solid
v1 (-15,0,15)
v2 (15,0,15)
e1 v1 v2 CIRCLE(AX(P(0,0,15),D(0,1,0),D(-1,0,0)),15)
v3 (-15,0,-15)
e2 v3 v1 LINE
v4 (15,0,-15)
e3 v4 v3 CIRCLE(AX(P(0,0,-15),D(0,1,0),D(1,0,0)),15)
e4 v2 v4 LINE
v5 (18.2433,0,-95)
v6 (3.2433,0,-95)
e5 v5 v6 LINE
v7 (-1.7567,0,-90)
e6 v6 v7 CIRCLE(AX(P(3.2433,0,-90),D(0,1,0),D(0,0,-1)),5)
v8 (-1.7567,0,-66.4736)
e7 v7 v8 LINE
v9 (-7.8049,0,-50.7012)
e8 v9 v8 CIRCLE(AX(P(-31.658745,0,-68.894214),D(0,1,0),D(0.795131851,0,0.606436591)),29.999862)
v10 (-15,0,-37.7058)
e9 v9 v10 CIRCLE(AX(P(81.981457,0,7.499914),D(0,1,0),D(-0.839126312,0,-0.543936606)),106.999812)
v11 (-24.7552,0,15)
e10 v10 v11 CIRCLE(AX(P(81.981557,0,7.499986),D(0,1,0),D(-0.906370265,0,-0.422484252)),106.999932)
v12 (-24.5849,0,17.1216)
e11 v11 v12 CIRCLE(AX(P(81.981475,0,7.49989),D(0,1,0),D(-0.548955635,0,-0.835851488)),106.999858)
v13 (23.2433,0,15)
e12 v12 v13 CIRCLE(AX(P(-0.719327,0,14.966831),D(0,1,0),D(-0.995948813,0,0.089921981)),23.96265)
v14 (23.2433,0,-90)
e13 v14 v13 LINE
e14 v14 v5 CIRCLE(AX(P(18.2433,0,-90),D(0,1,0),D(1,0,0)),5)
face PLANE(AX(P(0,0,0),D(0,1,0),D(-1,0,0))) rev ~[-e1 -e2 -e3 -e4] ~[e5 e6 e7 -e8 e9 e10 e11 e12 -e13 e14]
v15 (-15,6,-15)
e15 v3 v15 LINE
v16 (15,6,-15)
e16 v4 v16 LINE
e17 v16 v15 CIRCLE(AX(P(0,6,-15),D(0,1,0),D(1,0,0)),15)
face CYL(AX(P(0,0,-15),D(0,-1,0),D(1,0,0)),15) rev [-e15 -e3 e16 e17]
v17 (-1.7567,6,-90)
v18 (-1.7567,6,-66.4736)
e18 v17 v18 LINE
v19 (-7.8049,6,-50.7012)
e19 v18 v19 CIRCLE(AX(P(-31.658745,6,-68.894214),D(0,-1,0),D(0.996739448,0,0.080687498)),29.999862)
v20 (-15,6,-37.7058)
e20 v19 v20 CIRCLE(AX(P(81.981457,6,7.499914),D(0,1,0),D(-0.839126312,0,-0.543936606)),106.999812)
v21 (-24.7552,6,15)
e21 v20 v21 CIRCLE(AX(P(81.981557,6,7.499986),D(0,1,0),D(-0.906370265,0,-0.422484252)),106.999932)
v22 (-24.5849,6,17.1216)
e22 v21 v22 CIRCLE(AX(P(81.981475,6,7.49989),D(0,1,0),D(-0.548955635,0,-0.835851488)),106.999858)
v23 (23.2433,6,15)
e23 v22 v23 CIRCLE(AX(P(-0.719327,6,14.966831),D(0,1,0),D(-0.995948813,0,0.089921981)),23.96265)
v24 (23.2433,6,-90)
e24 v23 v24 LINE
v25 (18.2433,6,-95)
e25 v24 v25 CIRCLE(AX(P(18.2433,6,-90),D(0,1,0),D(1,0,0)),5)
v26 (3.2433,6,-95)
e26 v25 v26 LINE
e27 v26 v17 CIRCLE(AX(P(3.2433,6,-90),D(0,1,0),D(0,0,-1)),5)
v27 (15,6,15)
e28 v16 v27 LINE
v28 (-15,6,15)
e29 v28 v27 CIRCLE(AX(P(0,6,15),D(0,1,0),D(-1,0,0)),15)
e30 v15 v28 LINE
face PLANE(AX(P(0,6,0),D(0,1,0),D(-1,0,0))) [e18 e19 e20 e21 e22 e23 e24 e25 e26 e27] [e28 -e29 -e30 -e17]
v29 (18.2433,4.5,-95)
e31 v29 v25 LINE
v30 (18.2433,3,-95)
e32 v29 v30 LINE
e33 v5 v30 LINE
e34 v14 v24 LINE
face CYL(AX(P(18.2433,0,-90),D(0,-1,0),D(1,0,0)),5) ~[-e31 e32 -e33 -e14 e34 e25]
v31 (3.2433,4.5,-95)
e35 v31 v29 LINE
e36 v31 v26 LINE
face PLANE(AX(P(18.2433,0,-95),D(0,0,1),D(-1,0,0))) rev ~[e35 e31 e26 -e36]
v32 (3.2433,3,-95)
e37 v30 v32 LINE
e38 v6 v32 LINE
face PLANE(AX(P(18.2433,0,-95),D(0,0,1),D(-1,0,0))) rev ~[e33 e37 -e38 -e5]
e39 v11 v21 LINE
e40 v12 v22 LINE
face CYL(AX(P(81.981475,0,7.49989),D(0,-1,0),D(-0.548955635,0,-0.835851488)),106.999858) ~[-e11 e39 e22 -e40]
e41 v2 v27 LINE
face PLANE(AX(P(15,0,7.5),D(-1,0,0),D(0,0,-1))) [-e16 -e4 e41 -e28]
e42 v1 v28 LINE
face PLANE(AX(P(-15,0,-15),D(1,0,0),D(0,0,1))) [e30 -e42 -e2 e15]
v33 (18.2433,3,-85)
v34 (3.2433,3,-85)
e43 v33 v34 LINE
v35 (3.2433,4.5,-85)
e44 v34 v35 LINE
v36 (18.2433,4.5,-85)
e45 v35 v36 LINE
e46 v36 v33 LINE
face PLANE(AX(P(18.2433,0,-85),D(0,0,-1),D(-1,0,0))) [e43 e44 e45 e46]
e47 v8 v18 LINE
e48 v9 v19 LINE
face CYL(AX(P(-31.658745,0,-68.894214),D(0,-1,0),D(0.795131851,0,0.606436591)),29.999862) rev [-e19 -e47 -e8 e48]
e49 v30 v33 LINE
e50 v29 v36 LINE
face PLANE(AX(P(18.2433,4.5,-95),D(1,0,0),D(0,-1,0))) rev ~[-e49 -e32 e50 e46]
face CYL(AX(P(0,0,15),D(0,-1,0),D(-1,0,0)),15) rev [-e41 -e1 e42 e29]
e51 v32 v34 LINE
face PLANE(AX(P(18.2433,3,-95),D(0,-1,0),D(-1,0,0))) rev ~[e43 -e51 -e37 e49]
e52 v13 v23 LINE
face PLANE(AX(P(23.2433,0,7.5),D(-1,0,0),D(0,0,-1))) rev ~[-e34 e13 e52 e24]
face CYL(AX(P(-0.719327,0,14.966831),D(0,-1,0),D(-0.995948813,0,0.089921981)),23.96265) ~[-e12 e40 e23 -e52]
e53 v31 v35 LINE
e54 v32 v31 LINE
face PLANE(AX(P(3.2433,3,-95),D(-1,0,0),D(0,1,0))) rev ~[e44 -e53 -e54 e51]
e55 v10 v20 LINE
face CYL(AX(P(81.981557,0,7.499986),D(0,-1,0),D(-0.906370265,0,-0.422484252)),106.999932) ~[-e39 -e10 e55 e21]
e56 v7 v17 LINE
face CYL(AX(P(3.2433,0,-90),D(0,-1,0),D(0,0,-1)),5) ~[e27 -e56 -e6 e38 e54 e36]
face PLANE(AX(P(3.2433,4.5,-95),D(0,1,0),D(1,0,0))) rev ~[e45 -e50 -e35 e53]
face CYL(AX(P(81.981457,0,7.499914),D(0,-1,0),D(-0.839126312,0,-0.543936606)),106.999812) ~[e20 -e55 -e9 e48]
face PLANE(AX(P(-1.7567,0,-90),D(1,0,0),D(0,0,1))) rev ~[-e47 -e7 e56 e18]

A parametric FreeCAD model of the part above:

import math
import FreeCAD as App
import Part
import Sketcher


def add_polygon(sketch, points):
    """Adds a closed chain of lines whose ends are joined by coincident constraints."""
    first, n = sketch.GeometryCount, len(points)
    for a, b in zip(points, points[1:] + points[:1]):
        sketch.addGeometry(Part.LineSegment(App.Vector(*a, 0), App.Vector(*b, 0)), False)
    for i in range(n):
        sketch.addConstraint(Sketcher.Constraint("Coincident", first + i, 2, first + (i + 1) % n, 1))

doc = App.newDocument("Part")
body = doc.addObject("PartDesign::Body", "Body")

sketch1 = body.newObject("Sketcher::SketchObject", "Sketch")
sketch1.AttachmentSupport = (doc.getObject("XZ_Plane"), [""])
sketch1.MapMode = "FlatFace"
sketch1.addGeometry([
    Part.ArcOfCircle(Part.Circle(App.Vector(81.9816, 7.5, 0), App.Vector(0, 0, 1), 106.999974), math.radians(175.980644), math.radians(204.991525)),
    Part.ArcOfCircle(Part.Circle(App.Vector(81.9816, 7.5, 0), App.Vector(0, 0, 1), 106.999974), math.radians(174.840908), math.radians(175.980644)),
    Part.ArcOfCircle(Part.Circle(App.Vector(-0.7193, 14.9668, 0), App.Vector(0, 0, 1), 23.96268), math.radians(0.079383), math.radians(174.840813)),
    Part.LineSegment(App.Vector(23.2433, 15, 0), App.Vector(23.2433, -90, 0)),
    Part.ArcOfCircle(Part.Circle(App.Vector(18.2433, -90, 0), App.Vector(0, 0, 1), 5), math.radians(-90), math.radians(0)),
    Part.LineSegment(App.Vector(18.2433, -95, 0), App.Vector(3.2433, -95, 0)),
    Part.ArcOfCircle(Part.Circle(App.Vector(3.2433, -90, 0), App.Vector(0, 0, 1), 5), math.radians(180), math.radians(270)),
    Part.LineSegment(App.Vector(-1.7567, -90, 0), App.Vector(-1.7567, -66.4736, 0)),
    Part.ArcOfCircle(Part.Circle(App.Vector(-31.6589, -68.8943, 0), App.Vector(0, 0, 1), 30.000037), math.radians(4.628225), math.radians(37.332241)),
    Part.ArcOfCircle(Part.Circle(App.Vector(81.9816, 7.5, 0), App.Vector(0, 0, 1), 106.999974), math.radians(-155.008475), math.radians(-147.047978)),
    Part.LineSegment(App.Vector(15, -15, 0), App.Vector(15, 15, 0)),
    Part.ArcOfCircle(Part.Circle(App.Vector(0, 15, 0), App.Vector(0, 0, 1), 15), math.radians(0), math.radians(180)),
    Part.LineSegment(App.Vector(-15, 15, 0), App.Vector(-15, -15, 0)),
    Part.ArcOfCircle(Part.Circle(App.Vector(0, -15, 0), App.Vector(0, 0, 1), 15), math.radians(180), math.radians(360)),
], False)
sketch1.addConstraint([
    Sketcher.Constraint("Coincident", 0, 1, 1, 2),
    Sketcher.Constraint("Coincident", 1, 1, 2, 2),
    Sketcher.Constraint("Coincident", 2, 1, 3, 1),
    Sketcher.Constraint("Coincident", 3, 2, 4, 2),
    Sketcher.Constraint("Coincident", 4, 1, 5, 1),
    Sketcher.Constraint("Coincident", 5, 2, 6, 2),
    Sketcher.Constraint("Coincident", 6, 1, 7, 1),
    Sketcher.Constraint("Coincident", 7, 2, 8, 1),
    Sketcher.Constraint("Coincident", 8, 2, 9, 2),
    Sketcher.Constraint("Coincident", 9, 1, 0, 2),
    Sketcher.Constraint("Coincident", 10, 2, 11, 1),
    Sketcher.Constraint("Coincident", 11, 2, 12, 1),
    Sketcher.Constraint("Coincident", 12, 2, 13, 1),
    Sketcher.Constraint("Coincident", 13, 2, 10, 1),
    Sketcher.Constraint("Vertical", 3),
    Sketcher.Constraint("Horizontal", 5),
    Sketcher.Constraint("Vertical", 7),
    Sketcher.Constraint("Vertical", 10),
    Sketcher.Constraint("Vertical", 12),
    Sketcher.Constraint("Coincident", 1, 3, 0, 3),
    Sketcher.Constraint("Coincident", 9, 3, 0, 3),
    Sketcher.Constraint("PointOnObject", 11, 3, -2),
    Sketcher.Constraint("Radius", 0, 107.0),
    Sketcher.Constraint("Radius", 4, 5.0),
    Sketcher.Constraint("Radius", 6, 5.0),
    Sketcher.Constraint("Radius", 8, 30.0),
    Sketcher.Constraint("Radius", 11, 15.0),
    Sketcher.Constraint("DistanceY", 3, 2, 3, 1, 105.0),
    Sketcher.Constraint("DistanceY", 10, 1, 10, 2, 30.0),
    Sketcher.Constraint("DistanceY", 12, 2, 12, 1, 30.0),
    Sketcher.Constraint("DistanceY", 13, 3, 11, 3, 30.0),
    Sketcher.Constraint("DistanceY", 13, 3, 0, 1, 30.0),
    Sketcher.Constraint("DistanceY", 13, 3, 2, 1, 30.0),
    Sketcher.Constraint("DistanceX", 4, 1, 3, 2, 5.0),
    Sketcher.Constraint("DistanceY", 4, 1, 3, 2, 5.0),
    Sketcher.Constraint("DistanceX", 6, 1, 5, 2, 5.0),
    Sketcher.Constraint("DistanceY", 5, 2, 6, 1, 5.0),
    Sketcher.Constraint("DistanceX", 6, 1, 3, 2, 25.0),
    Sketcher.Constraint("DistanceY", 13, 3, 10, 2, 30.0),
    Sketcher.Constraint("DistanceY", 12, 2, 0, 1, 30.0),
    Sketcher.Constraint("DistanceY", -1, 1, 0, 3, 7.5),
    Sketcher.Constraint("DistanceY", 0, 3, 11, 3, 7.5),
    Sketcher.Constraint("DistanceX", 9, 1, -1, 1, 15.0),
    Sketcher.Constraint("Radius", 2, 23.9627),
    Sketcher.Constraint("DistanceY", 7, 1, 7, 2, 23.5264),
    Sketcher.Constraint("DistanceX", 8, 3, -1, 1, 31.659),
    Sketcher.Constraint("DistanceX", 1, 1, -1, 1, 24.585),
    Sketcher.Constraint("DistanceX", 8, 2, -1, 1, 7.805),
    Sketcher.Constraint("DistanceX", 2, 3, 0, 3, 82.701),
])
pad1 = body.newObject("PartDesign::Pad", "Pad")
pad1.Profile = sketch1
pad1.Length = 6
pad1.Reversed = True

sketch2 = body.newObject("Sketcher::SketchObject", "Sketch001")
sketch2.AttachmentSupport = (doc.getObject("XY_Plane"), [""])
sketch2.MapMode = "FlatFace"
sketch2.AttachmentOffset = App.Placement(App.Vector(0, 0, -95), App.Rotation())
add_polygon(sketch2, [(18.2433, 3), (3.2433, 3), (3.2433, 4.5), (18.2433, 4.5)])
sketch2.addConstraint([
    Sketcher.Constraint("Horizontal", 0),
    Sketcher.Constraint("Vertical", 1),
    Sketcher.Constraint("Horizontal", 2),
    Sketcher.Constraint("Vertical", 3),
    Sketcher.Constraint("DistanceY", 1, 1, 1, 2, 1.5),
    Sketcher.Constraint("DistanceX", 0, 2, 0, 1, 15.0),
    Sketcher.Constraint("DistanceY", -1, 1, 0, 2, 3.0),
    Sketcher.Constraint("DistanceX", -1, 1, 0, 2, 3.2433),
])
pocket1 = body.newObject("PartDesign::Pocket", "Pocket")
pocket1.Profile = sketch2
pocket1.Length = 10
pocket1.Reversed = True

doc.recompute()
